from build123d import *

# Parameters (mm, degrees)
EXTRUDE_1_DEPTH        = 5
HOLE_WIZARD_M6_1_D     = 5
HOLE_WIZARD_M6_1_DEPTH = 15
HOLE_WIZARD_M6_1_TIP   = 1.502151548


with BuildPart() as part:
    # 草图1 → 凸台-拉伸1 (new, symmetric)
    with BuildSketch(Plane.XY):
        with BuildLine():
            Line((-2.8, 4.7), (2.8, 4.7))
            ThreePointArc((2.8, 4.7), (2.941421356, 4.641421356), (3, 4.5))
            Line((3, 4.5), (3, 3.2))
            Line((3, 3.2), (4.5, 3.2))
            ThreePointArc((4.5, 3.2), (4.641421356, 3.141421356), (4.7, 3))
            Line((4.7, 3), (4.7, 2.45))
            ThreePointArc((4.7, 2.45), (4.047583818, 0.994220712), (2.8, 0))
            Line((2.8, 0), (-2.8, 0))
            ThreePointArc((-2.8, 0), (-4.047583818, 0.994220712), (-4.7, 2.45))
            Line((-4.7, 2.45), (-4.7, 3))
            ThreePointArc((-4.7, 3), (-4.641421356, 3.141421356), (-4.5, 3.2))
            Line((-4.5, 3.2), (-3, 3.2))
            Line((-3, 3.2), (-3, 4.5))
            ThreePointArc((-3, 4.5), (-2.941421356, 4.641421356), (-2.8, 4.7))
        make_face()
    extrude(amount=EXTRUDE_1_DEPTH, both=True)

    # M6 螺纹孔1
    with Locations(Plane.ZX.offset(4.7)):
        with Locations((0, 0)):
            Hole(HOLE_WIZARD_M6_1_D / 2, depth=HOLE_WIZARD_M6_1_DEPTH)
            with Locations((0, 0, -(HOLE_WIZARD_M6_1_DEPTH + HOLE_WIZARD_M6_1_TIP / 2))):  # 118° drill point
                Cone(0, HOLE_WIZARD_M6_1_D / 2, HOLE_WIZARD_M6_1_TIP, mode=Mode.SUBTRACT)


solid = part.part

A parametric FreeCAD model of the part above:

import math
import FreeCAD as App
import Part
import Sketcher

doc = App.newDocument("Part")
body = doc.addObject("PartDesign::Body", "Body")

# Sketch on XY plane
sketch1 = body.newObject("Sketcher::SketchObject", "Sketch")
sketch1.AttachmentSupport = (doc.getObject("XY_Plane"), [""])
sketch1.MapMode = "FlatFace"
sketch1.addGeometry([
    Part.LineSegment(App.Vector(2.8, 4.7, 0), App.Vector(-2.8, 4.7, 0)),  # 0
    Part.ArcOfCircle(Part.Circle(App.Vector(-2.8, 4.5, 0), App.Vector(0, 0, 1), 0.2), math.radians(90), math.radians(180)),  # 1
    Part.LineSegment(App.Vector(-3, 4.5, 0), App.Vector(-3, 3.2, 0)),  # 2
    Part.LineSegment(App.Vector(-3, 3.2, 0), App.Vector(-4.5, 3.2, 0)),  # 3
    Part.ArcOfCircle(Part.Circle(App.Vector(-4.5, 3, 0), App.Vector(0, 0, 1), 0.2), math.radians(90), math.radians(180)),  # 4
    Part.LineSegment(App.Vector(-4.7, 3, 0), App.Vector(-4.7, 2.45, 0)),  # 5
    Part.ArcOfCircle(Part.Circle(App.Vector(-1.38, 3.06, 0), App.Vector(0, 0, 1), 3.38), math.radians(-170), math.radians(-115)),  # 6
    Part.LineSegment(App.Vector(-2.8, 0, 0), App.Vector(2.8, 0, 0)),  # 7
    Part.ArcOfCircle(Part.Circle(App.Vector(1.38, 3.06, 0), App.Vector(0, 0, 1), 3.38), math.radians(-65), math.radians(-10)),  # 8
    Part.LineSegment(App.Vector(4.7, 2.45, 0), App.Vector(4.7, 3, 0)),  # 9
    Part.ArcOfCircle(Part.Circle(App.Vector(4.5, 3, 0), App.Vector(0, 0, 1), 0.2), math.radians(0), math.radians(90)),  # 10
    Part.LineSegment(App.Vector(4.5, 3.2, 0), App.Vector(3, 3.2, 0)),  # 11
    Part.LineSegment(App.Vector(3, 3.2, 0), App.Vector(3, 4.5, 0)),  # 12
    Part.ArcOfCircle(Part.Circle(App.Vector(2.8, 4.5, 0), App.Vector(0, 0, 1), 0.2), math.radians(0), math.radians(90)),  # 13
], False)
sketch1.addConstraint([
    Sketcher.Constraint("Tangent", 0, 2, 1, 1),
    Sketcher.Constraint("Tangent", 1, 2, 2, 1),
    Sketcher.Constraint("Coincident", 2, 2, 3, 1),
    Sketcher.Constraint("Tangent", 3, 2, 4, 1),
    Sketcher.Constraint("Tangent", 4, 2, 5, 1),
    Sketcher.Constraint("Coincident", 5, 2, 6, 1),
    Sketcher.Constraint("Coincident", 6, 2, 7, 1),
    Sketcher.Constraint("Coincident", 7, 2, 8, 1),
    Sketcher.Constraint("Coincident", 8, 2, 9, 1),
    Sketcher.Constraint("Tangent", 9, 2, 10, 1),
    Sketcher.Constraint("Tangent", 10, 2, 11, 1),
    Sketcher.Constraint("Coincident", 11, 2, 12, 1),
    Sketcher.Constraint("Tangent", 12, 2, 13, 1),
    Sketcher.Constraint("Tangent", 13, 2, 0, 1),
    Sketcher.Constraint("Horizontal", 0),
    Sketcher.Constraint("Vertical", 2),
    Sketcher.Constraint("Horizontal", 3),
    Sketcher.Constraint("Vertical", 5),
    Sketcher.Constraint("Horizontal", 7),
    Sketcher.Constraint("Vertical", 9),
    Sketcher.Constraint("Horizontal", 11),
    Sketcher.Constraint("Vertical", 12),
    Sketcher.Constraint("Equal", 1, 4),
    Sketcher.Constraint("Equal", 6, 8),
    Sketcher.Constraint("Equal", 4, 10),
    Sketcher.Constraint("Equal", 10, 13),
    Sketcher.Constraint("Symmetric", 6, 2, 7, 2, -1, 1),
    Sketcher.Constraint("Symmetric", 4, 3, 10, 3, -2),
    Sketcher.Constraint("Horizontal", 6, 3, 8, 3),
    Sketcher.Constraint("Vertical", 0, 2, 6, 2),
    Sketcher.Constraint("Vertical", 13, 3, 7, 2),
    Sketcher.Constraint("Radius", 1, 0.2),
    Sketcher.Constraint("DistanceX", 0, 2, 0, 1, 5.6),
    Sketcher.Constraint("DistanceX", 3, 2, 3, 1, 1.5),
    Sketcher.Constraint("DistanceY", 2, 2, 2, 1, 1.3),
    Sketcher.Constraint("DistanceY", -1, 1, 4, 3, 3.0),
    Sketcher.Constraint("DistanceY", 5, 2, 5, 1, 0.55),
    Sketcher.Constraint("Radius", 6, 3.378984),
])
pad1 = body.newObject("PartDesign::Pad", "Pad")
pad1.Profile = sketch1
pad1.Length = 10
pad1.Midplane = True

# Sketch on XZ plane
sketch2 = body.newObject("Sketcher::SketchObject", "Sketch001")
sketch2.AttachmentSupport = (doc.getObject("XZ_Plane"), [""])
sketch2.MapMode = "FlatFace"
sketch2.AttachmentOffset = App.Placement(App.Vector(0, 0, -4.7), App.Rotation())
sketch2.addGeometry(Part.Circle(App.Vector(0, 0, 0), App.Vector(0, 0, 1), 2.5), False)
sketch2.addConstraint([
    Sketcher.Constraint("Coincident", 0, 3, -1, 1),
    Sketcher.Constraint("Diameter", 0, 5.0),
])
doc.recompute()
hole = body.newObject("PartDesign::Hole", "Hole")
hole.Profile = sketch2
hole.ThreadType = "None"
hole.Diameter = 5
hole.DepthType = "Dimension"
hole.Depth = 15
hole.DrillPoint = "Angled"
hole.DrillPointAngle = 118
hole.Reversed = True

doc.recompute()
